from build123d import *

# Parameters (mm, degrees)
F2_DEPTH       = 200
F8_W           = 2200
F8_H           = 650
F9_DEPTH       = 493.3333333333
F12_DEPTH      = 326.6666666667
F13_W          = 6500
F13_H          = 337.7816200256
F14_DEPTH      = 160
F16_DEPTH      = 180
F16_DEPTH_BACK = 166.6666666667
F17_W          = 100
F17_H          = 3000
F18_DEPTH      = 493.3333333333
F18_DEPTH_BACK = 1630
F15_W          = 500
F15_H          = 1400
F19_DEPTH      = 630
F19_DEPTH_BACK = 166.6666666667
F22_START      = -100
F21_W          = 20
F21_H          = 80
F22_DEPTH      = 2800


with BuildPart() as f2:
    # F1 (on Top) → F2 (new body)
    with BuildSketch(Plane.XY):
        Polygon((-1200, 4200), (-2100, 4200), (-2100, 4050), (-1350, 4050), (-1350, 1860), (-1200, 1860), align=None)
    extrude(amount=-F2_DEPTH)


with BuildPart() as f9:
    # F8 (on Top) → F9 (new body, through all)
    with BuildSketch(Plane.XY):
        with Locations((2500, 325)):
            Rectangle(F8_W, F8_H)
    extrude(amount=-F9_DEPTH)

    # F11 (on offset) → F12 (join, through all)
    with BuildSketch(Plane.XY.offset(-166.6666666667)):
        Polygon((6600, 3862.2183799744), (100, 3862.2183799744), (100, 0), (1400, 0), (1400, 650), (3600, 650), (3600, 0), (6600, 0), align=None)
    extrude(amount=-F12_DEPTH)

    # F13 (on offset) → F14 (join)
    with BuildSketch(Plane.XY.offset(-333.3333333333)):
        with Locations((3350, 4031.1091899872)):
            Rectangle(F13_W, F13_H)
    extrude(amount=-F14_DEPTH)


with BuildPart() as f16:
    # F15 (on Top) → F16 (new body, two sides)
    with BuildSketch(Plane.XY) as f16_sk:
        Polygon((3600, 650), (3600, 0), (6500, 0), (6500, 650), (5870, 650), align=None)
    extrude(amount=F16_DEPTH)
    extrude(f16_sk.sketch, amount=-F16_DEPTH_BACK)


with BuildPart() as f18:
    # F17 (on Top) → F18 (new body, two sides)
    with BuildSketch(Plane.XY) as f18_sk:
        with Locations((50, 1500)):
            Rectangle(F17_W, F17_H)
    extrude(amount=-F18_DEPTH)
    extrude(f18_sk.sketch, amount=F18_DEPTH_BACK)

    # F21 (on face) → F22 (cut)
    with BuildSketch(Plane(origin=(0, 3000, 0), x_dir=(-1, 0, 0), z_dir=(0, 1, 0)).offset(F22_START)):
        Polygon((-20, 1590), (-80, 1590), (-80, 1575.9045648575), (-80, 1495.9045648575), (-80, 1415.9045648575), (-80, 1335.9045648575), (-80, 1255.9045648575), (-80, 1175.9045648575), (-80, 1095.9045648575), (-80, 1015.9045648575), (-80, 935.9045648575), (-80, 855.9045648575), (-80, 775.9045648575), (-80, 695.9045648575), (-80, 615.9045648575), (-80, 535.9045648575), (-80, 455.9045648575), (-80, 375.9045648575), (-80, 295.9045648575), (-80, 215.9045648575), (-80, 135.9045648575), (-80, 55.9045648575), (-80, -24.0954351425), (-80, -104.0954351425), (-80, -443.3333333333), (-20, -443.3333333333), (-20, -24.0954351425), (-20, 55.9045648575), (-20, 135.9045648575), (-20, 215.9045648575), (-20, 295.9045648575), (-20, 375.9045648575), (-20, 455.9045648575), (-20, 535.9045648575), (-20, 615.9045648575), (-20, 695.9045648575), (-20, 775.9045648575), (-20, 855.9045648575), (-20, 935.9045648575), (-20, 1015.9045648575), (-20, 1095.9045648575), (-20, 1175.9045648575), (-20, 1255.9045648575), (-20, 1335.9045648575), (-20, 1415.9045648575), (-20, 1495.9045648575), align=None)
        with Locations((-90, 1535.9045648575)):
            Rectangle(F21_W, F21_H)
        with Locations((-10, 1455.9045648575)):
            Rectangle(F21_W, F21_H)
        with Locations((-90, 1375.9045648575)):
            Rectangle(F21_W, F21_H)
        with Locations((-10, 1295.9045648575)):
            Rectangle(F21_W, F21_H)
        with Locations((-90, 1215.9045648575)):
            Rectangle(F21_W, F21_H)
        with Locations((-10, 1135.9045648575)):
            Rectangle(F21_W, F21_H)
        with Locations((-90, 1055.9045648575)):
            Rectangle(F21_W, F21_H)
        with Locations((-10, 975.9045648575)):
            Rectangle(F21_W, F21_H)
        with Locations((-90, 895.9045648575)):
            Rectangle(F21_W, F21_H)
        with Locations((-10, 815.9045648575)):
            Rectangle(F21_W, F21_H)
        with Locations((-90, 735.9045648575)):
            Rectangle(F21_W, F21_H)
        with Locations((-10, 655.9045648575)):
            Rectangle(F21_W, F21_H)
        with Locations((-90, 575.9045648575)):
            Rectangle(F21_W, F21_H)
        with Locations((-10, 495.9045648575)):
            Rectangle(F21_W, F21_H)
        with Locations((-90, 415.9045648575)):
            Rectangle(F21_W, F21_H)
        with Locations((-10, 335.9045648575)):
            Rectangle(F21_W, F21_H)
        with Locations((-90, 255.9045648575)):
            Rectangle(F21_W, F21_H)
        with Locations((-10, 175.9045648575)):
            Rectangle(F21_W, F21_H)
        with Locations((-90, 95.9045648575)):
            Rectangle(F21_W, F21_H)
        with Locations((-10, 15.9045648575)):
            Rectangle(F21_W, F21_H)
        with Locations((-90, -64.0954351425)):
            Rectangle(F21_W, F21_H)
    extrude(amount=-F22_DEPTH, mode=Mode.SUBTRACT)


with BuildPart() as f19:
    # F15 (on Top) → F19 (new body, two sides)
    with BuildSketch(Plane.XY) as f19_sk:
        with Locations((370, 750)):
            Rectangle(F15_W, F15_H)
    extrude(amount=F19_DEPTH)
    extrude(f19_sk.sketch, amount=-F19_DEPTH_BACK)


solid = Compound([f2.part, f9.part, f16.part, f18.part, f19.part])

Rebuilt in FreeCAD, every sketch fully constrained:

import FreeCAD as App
import Part
import Sketcher
from FreeCAD import Vector
Q = App.Units.Quantity

doc = App.newDocument("Part")
body = doc.addObject("PartDesign::Body", "Body")

# Sketch on XY plane
sketch1 = body.newObject("Sketcher::SketchObject", "Sketch")
sketch1.AttachmentSupport = (doc.getObject("XY_Plane"), [""])
sketch1.MapMode = "FlatFace"
sketch1.addGeometry([
    Part.LineSegment(Vector(-1200, 4200, 0), Vector(-2100, 4200, 0)),  # 0
    Part.LineSegment(Vector(-2100, 4200, 0), Vector(-2100, 4050, 0)),  # 1
    Part.LineSegment(Vector(-2100, 4050, 0), Vector(-1350, 4050, 0)),  # 2
    Part.LineSegment(Vector(-1350, 4050, 0), Vector(-1350, 1860, 0)),  # 3
    Part.LineSegment(Vector(-1350, 1860, 0), Vector(-1200, 1860, 0)),  # 4
    Part.LineSegment(Vector(-1200, 1860, 0), Vector(-1200, 4200, 0)),  # 5
], False)
sketch1.addConstraint([
    Sketcher.Constraint("Coincident", 0, 2, 1, 1),
    Sketcher.Constraint("Coincident", 1, 2, 2, 1),
    Sketcher.Constraint("Coincident", 2, 2, 3, 1),
    Sketcher.Constraint("Coincident", 3, 2, 4, 1),
    Sketcher.Constraint("Coincident", 4, 2, 5, 1),
    Sketcher.Constraint("Coincident", 5, 2, 0, 1),
    Sketcher.Constraint("Horizontal", 0),
    Sketcher.Constraint("Vertical", 1),
    Sketcher.Constraint("Horizontal", 2),
    Sketcher.Constraint("Vertical", 3),
    Sketcher.Constraint("Horizontal", 4),
    Sketcher.Constraint("Vertical", 5),
    Sketcher.Constraint("Equal", 4, 1),
    Sketcher.Constraint("DistanceX", 0, 2, 0, 1, Q("900 mm")),
    Sketcher.Constraint("DistanceX", 2, 1, 2, 2, Q("750 mm")),
    Sketcher.Constraint("DistanceY", 3, 2, 3, 1, Q("2190 mm")),
    Sketcher.Constraint("DistanceX", 0, 2, -1, 1, Q("2100 mm")),
    Sketcher.Constraint("DistanceY", -1, 1, 0, 2, Q("4200 mm")),
])
pad1 = body.newObject("PartDesign::Pad", "Pad")
pad1.Profile = sketch1
pad1.Length = 200
pad1.Reversed = True
body2 = doc.addObject("PartDesign::Body", "Body001")

# Sketch on XY plane
sketch2 = body2.newObject("Sketcher::SketchObject", "Sketch001")
sketch2.AttachmentSupport = (doc.getObject("XY_Plane001"), [""])
sketch2.MapMode = "FlatFace"
sketch2.addGeometry([
    Part.LineSegment(Vector(1400, 650, 0), Vector(1400, 0, 0)),
    Part.LineSegment(Vector(1400, 0, 0), Vector(3600, 0, 0)),
    Part.LineSegment(Vector(3600, 0, 0), Vector(3600, 650, 0)),
    Part.LineSegment(Vector(3600, 650, 0), Vector(1400, 650, 0)),
], False)
sketch2.addConstraint([
    Sketcher.Constraint("Coincident", 0, 2, 1, 1),
    Sketcher.Constraint("Coincident", 1, 2, 2, 1),
    Sketcher.Constraint("Coincident", 2, 2, 3, 1),
    Sketcher.Constraint("Coincident", 3, 2, 0, 1),
    Sketcher.Constraint("Vertical", 0),
    Sketcher.Constraint("Horizontal", 1),
    Sketcher.Constraint("Vertical", 2),
    Sketcher.Constraint("Horizontal", 3),
    Sketcher.Constraint("PointOnObject", 0, 2, -1),
    Sketcher.Constraint("DistanceX", 1, 1, 1, 2, Q("2200 mm")),
    Sketcher.Constraint("DistanceY", 0, 2, 0, 1, Q("650 mm")),
    Sketcher.Constraint("DistanceX", -1, 1, 0, 2, Q("1400 mm")),
])
pad2 = body2.newObject("PartDesign::Pad", "Pad001")
pad2.Profile = sketch2
pad2.Length = 493.333333
pad2.Reversed = True

# Sketch on XY plane
sketch3 = body2.newObject("Sketcher::SketchObject", "Sketch002")
sketch3.AttachmentSupport = (doc.getObject("XY_Plane001"), [""])
sketch3.MapMode = "FlatFace"
sketch3.AttachmentOffset = App.Placement(Vector(0, 0, -166.666667), App.Rotation())
sketch3.addGeometry([
    Part.LineSegment(Vector(6600, 3862.21838, 0), Vector(100, 3862.21838, 0)),  # 0
    Part.LineSegment(Vector(100, 3862.21838, 0), Vector(100, 0, 0)),  # 1
    Part.LineSegment(Vector(100, 0, 0), Vector(1400, 0, 0)),  # 2
    Part.LineSegment(Vector(1400, 0, 0), Vector(1400, 650, 0)),  # 3
    Part.LineSegment(Vector(1400, 650, 0), Vector(3600, 650, 0)),  # 4
    Part.LineSegment(Vector(3600, 650, 0), Vector(3600, 0, 0)),  # 5
    Part.LineSegment(Vector(3600, 0, 0), Vector(6600, 0, 0)),  # 6
    Part.LineSegment(Vector(6600, 0, 0), Vector(6600, 3862.21838, 0)),  # 7
], False)
sketch3.addConstraint([
    Sketcher.Constraint("Coincident", 0, 2, 1, 1),
    Sketcher.Constraint("Coincident", 1, 2, 2, 1),
    Sketcher.Constraint("Coincident", 2, 2, 3, 1),
    Sketcher.Constraint("Coincident", 3, 2, 4, 1),
    Sketcher.Constraint("Coincident", 4, 2, 5, 1),
    Sketcher.Constraint("Coincident", 5, 2, 6, 1),
    Sketcher.Constraint("Coincident", 6, 2, 7, 1),
    Sketcher.Constraint("Coincident", 7, 2, 0, 1),
    Sketcher.Constraint("Horizontal", 0),
    Sketcher.Constraint("Vertical", 1),
    Sketcher.Constraint("Horizontal", 2),
    Sketcher.Constraint("Vertical", 3),
    Sketcher.Constraint("Horizontal", 4),
    Sketcher.Constraint("Vertical", 5),
    Sketcher.Constraint("Horizontal", 6),
    Sketcher.Constraint("Vertical", 7),
    Sketcher.Constraint("PointOnObject", 1, 2, -1),
    Sketcher.Constraint("PointOnObject", 5, 2, -1),
    Sketcher.Constraint("DistanceX", 0, 2, 0, 1, Q("6500 mm")),
    Sketcher.Constraint("DistanceX", 2, 1, 2, 2, Q("1300 mm")),
    Sketcher.Constraint("DistanceX", 4, 1, 4, 2, Q("2200 mm")),
    Sketcher.Constraint("DistanceY", 3, 1, 3, 2, Q("650 mm")),
    Sketcher.Constraint("DistanceX", -1, 1, 0, 2, Q("100 mm")),
    Sketcher.Constraint("DistanceY", 1, 2, 1, 1, Q("3862.21838 mm")),
])
pad3 = body2.newObject("PartDesign::Pad", "Pad002")
pad3.Profile = sketch3
pad3.Length = 326.666667
pad3.Reversed = True

# Sketch on XY plane
sketch4 = body2.newObject("Sketcher::SketchObject", "Sketch003")
sketch4.AttachmentSupport = (doc.getObject("XY_Plane001"), [""])
sketch4.MapMode = "FlatFace"
sketch4.AttachmentOffset = App.Placement(Vector(0, 0, -333.333333), App.Rotation())
sketch4.addGeometry([
    Part.LineSegment(Vector(100, 4200, 0), Vector(100, 3862.21838, 0)),
    Part.LineSegment(Vector(100, 3862.21838, 0), Vector(6600, 3862.21838, 0)),
    Part.LineSegment(Vector(6600, 3862.21838, 0), Vector(6600, 4200, 0)),
    Part.LineSegment(Vector(6600, 4200, 0), Vector(100, 4200, 0)),
], False)
sketch4.addConstraint([
    Sketcher.Constraint("Coincident", 0, 2, 1, 1),
    Sketcher.Constraint("Coincident", 1, 2, 2, 1),
    Sketcher.Constraint("Coincident", 2, 2, 3, 1),
    Sketcher.Constraint("Coincident", 3, 2, 0, 1),
    Sketcher.Constraint("Vertical", 0),
    Sketcher.Constraint("Horizontal", 1),
    Sketcher.Constraint("Vertical", 2),
    Sketcher.Constraint("Horizontal", 3),
    Sketcher.Constraint("DistanceX", 1, 1, 1, 2, Q("6500 mm")),
    Sketcher.Constraint("DistanceX", -1, 1, 0, 2, Q("100 mm")),
    Sketcher.Constraint("DistanceY", -1, 1, 2, 2, Q("4200 mm")),
    Sketcher.Constraint("DistanceY", 0, 2, 0, 1, Q("337.78162 mm")),
])
pad4 = body2.newObject("PartDesign::Pad", "Pad003")
pad4.Profile = sketch4
pad4.Length = 160
pad4.Reversed = True
body3 = doc.addObject("PartDesign::Body", "Body002")

# Sketch on XY plane
sketch5 = body3.newObject("Sketcher::SketchObject", "Sketch004")
sketch5.AttachmentSupport = (doc.getObject("XY_Plane002"), [""])
sketch5.MapMode = "FlatFace"
sketch5.addGeometry([
    Part.LineSegment(Vector(3600, 650, 0), Vector(3600, 0, 0)),
    Part.LineSegment(Vector(3600, 0, 0), Vector(6500, 0, 0)),
    Part.LineSegment(Vector(6500, 0, 0), Vector(6500, 650, 0)),
    Part.LineSegment(Vector(6500, 650, 0), Vector(3600, 650, 0)),
], False)
sketch5.addConstraint([
    Sketcher.Constraint("Coincident", 0, 2, 1, 1),
    Sketcher.Constraint("Coincident", 1, 2, 2, 1),
    Sketcher.Constraint("Coincident", 2, 2, 3, 1),
    Sketcher.Constraint("Coincident", 3, 2, 0, 1),
    Sketcher.Constraint("Vertical", 0),
    Sketcher.Constraint("Horizontal", 1),
    Sketcher.Constraint("Vertical", 2),
    Sketcher.Constraint("Horizontal", 3),
    Sketcher.Constraint("PointOnObject", 0, 2, -1),
    Sketcher.Constraint("DistanceX", 1, 1, 1, 2, Q("2900 mm")),
    Sketcher.Constraint("DistanceY", 0, 2, 0, 1, Q("650 mm")),
    Sketcher.Constraint("DistanceX", -1, 1, 0, 2, Q("3600 mm")),
])
pad5 = body3.newObject("PartDesign::Pad", "Pad004")
pad5.Profile = sketch5
pad5.Type = "TwoLengths"
pad5.Length = 180
pad5.Length2 = 166.666667
body4 = doc.addObject("PartDesign::Body", "Body003")

# Sketch on XY plane
sketch6 = body4.newObject("Sketcher::SketchObject", "Sketch005")
sketch6.AttachmentSupport = (doc.getObject("XY_Plane003"), [""])
sketch6.MapMode = "FlatFace"
sketch6.addGeometry([
    Part.LineSegment(Vector(0, 3000, 0), Vector(0, 0, 0)),
    Part.LineSegment(Vector(0, 0, 0), Vector(100, 0, 0)),
    Part.LineSegment(Vector(100, 0, 0), Vector(100, 3000, 0)),
    Part.LineSegment(Vector(100, 3000, 0), Vector(0, 3000, 0)),
], False)
sketch6.addConstraint([
    Sketcher.Constraint("Coincident", 0, 2, 1, 1),
    Sketcher.Constraint("Coincident", 1, 2, 2, 1),
    Sketcher.Constraint("Coincident", 2, 2, 3, 1),
    Sketcher.Constraint("Coincident", 3, 2, 0, 1),
    Sketcher.Constraint("Vertical", 0),
    Sketcher.Constraint("Horizontal", 1),
    Sketcher.Constraint("Vertical", 2),
    Sketcher.Constraint("Horizontal", 3),
    Sketcher.Constraint("Coincident", 0, 2, -1, 1),
    Sketcher.Constraint("DistanceX", 1, 1, 1, 2, Q("100 mm")),
    Sketcher.Constraint("DistanceY", 0, 2, 0, 1, Q("3000 mm")),
])
pad6 = body4.newObject("PartDesign::Pad", "Pad005")
pad6.Profile = sketch6
pad6.Type = "TwoLengths"
pad6.Length = 493.333333
pad6.Length2 = 1630
pad6.Reversed = True

# Sketch on XZ plane
sketch7 = body4.newObject("Sketcher::SketchObject", "Sketch006")
sketch7.AttachmentSupport = (doc.getObject("XZ_Plane003"), [""])
sketch7.MapMode = "FlatFace"
sketch7.AttachmentOffset = App.Placement(Vector(0, 0, -2900), App.Rotation())
sketch7.addGeometry([
    Part.LineSegment(Vector(20, 1590, 0), Vector(80, 1590, 0)),  # 0
    Part.LineSegment(Vector(80, 1590, 0), Vector(80, 1575.904565, 0)),  # 1
    Part.LineSegment(Vector(80, 1575.904565, 0), Vector(100, 1575.904565, 0)),  # 2
    Part.LineSegment(Vector(100, 1575.904565, 0), Vector(100, 1495.904565, 0)),  # 3
    Part.LineSegment(Vector(100, 1495.904565, 0), Vector(80, 1495.904565, 0)),  # 4
    Part.LineSegment(Vector(80, 1495.904565, 0), Vector(80, 1415.904565, 0)),  # 5
    Part.LineSegment(Vector(80, 1415.904565, 0), Vector(100, 1415.904565, 0)),  # 6
    Part.LineSegment(Vector(100, 1415.904565, 0), Vector(100, 1335.904565, 0)),  # 7
    Part.LineSegment(Vector(100, 1335.904565, 0), Vector(80, 1335.904565, 0)),  # 8
    Part.LineSegment(Vector(80, 1335.904565, 0), Vector(80, 1255.904565, 0)),  # 9
    Part.LineSegment(Vector(80, 1255.904565, 0), Vector(100, 1255.904565, 0)),  # 10
    Part.LineSegment(Vector(100, 1255.904565, 0), Vector(100, 1175.904565, 0)),  # 11
    Part.LineSegment(Vector(100, 1175.904565, 0), Vector(80, 1175.904565, 0)),  # 12
    Part.LineSegment(Vector(80, 1175.904565, 0), Vector(80, 1095.904565, 0)),  # 13
    Part.LineSegment(Vector(80, 1095.904565, 0), Vector(100, 1095.904565, 0)),  # 14
    Part.LineSegment(Vector(100, 1095.904565, 0), Vector(100, 1015.904565, 0)),  # 15
    Part.LineSegment(Vector(100, 1015.904565, 0), Vector(80, 1015.904565, 0)),  # 16
    Part.LineSegment(Vector(80, 1015.904565, 0), Vector(80, 935.904565, 0)),  # 17
    Part.LineSegment(Vector(80, 935.904565, 0), Vector(100, 935.904565, 0)),  # 18
    Part.LineSegment(Vector(100, 935.904565, 0), Vector(100, 855.904565, 0)),  # 19
    Part.LineSegment(Vector(100, 855.904565, 0), Vector(80, 855.904565, 0)),  # 20
    Part.LineSegment(Vector(80, 855.904565, 0), Vector(80, 775.904565, 0)),  # 21
    Part.LineSegment(Vector(80, 775.904565, 0), Vector(100, 775.904565, 0)),  # 22
    Part.LineSegment(Vector(100, 775.904565, 0), Vector(100, 695.904565, 0)),  # 23
    Part.LineSegment(Vector(100, 695.904565, 0), Vector(80, 695.904565, 0)),  # 24
    Part.LineSegment(Vector(80, 695.904565, 0), Vector(80, 615.904565, 0)),  # 25
    Part.LineSegment(Vector(80, 615.904565, 0), Vector(100, 615.904565, 0)),  # 26
    Part.LineSegment(Vector(100, 615.904565, 0), Vector(100, 535.904565, 0)),  # 27
    Part.LineSegment(Vector(100, 535.904565, 0), Vector(80, 535.904565, 0)),  # 28
    Part.LineSegment(Vector(80, 535.904565, 0), Vector(80, 455.904565, 0)),  # 29
    Part.LineSegment(Vector(80, 455.904565, 0), Vector(100, 455.904565, 0)),  # 30
    Part.LineSegment(Vector(100, 455.904565, 0), Vector(100, 375.904565, 0)),  # 31
    Part.LineSegment(Vector(100, 375.904565, 0), Vector(80, 375.904565, 0)),  # 32
    Part.LineSegment(Vector(80, 375.904565, 0), Vector(80, 295.904565, 0)),  # 33
    Part.LineSegment(Vector(80, 295.904565, 0), Vector(100, 295.904565, 0)),  # 34
    Part.LineSegment(Vector(100, 295.904565, 0), Vector(100, 215.904565, 0)),  # 35
    Part.LineSegment(Vector(100, 215.904565, 0), Vector(80, 215.904565, 0)),  # 36
    Part.LineSegment(Vector(80, 215.904565, 0), Vector(80, 135.904565, 0)),  # 37
    Part.LineSegment(Vector(80, 135.904565, 0), Vector(100, 135.904565, 0)),  # 38
    Part.LineSegment(Vector(100, 135.904565, 0), Vector(100, 55.904565, 0)),  # 39
    Part.LineSegment(Vector(100, 55.904565, 0), Vector(80, 55.904565, 0)),  # 40
    Part.LineSegment(Vector(80, 55.904565, 0), Vector(80, -24.095435, 0)),  # 41
    Part.LineSegment(Vector(80, -24.095435, 0), Vector(100, -24.095435, 0)),  # 42
    Part.LineSegment(Vector(100, -24.095435, 0), Vector(100, -104.095435, 0)),  # 43
    Part.LineSegment(Vector(100, -104.095435, 0), Vector(80, -104.095435, 0)),  # 44
    Part.LineSegment(Vector(80, -104.095435, 0), Vector(80, -443.333333, 0)),  # 45
    Part.LineSegment(Vector(80, -443.333333, 0), Vector(20, -443.333333, 0)),  # 46
    Part.LineSegment(Vector(20, -443.333333, 0), Vector(20, -24.095435, 0)),  # 47
    Part.LineSegment(Vector(20, -24.095435, 0), Vector(0, -24.095435, 0)),  # 48
    Part.LineSegment(Vector(0, -24.095435, 0), Vector(0, 55.904565, 0)),  # 49
    Part.LineSegment(Vector(0, 55.904565, 0), Vector(20, 55.904565, 0)),  # 50
    Part.LineSegment(Vector(20, 55.904565, 0), Vector(20, 135.904565, 0)),  # 51
    Part.LineSegment(Vector(20, 135.904565, 0), Vector(0, 135.904565, 0)),  # 52
    Part.LineSegment(Vector(0, 135.904565, 0), Vector(0, 215.904565, 0)),  # 53
    Part.LineSegment(Vector(0, 215.904565, 0), Vector(20, 215.904565, 0)),  # 54
    Part.LineSegment(Vector(20, 215.904565, 0), Vector(20, 295.904565, 0)),  # 55
    Part.LineSegment(Vector(20, 295.904565, 0), Vector(0, 295.904565, 0)),  # 56
    Part.LineSegment(Vector(0, 295.904565, 0), Vector(0, 375.904565, 0)),  # 57
    Part.LineSegment(Vector(0, 375.904565, 0), Vector(20, 375.904565, 0)),  # 58
    Part.LineSegment(Vector(20, 375.904565, 0), Vector(20, 455.904565, 0)),  # 59
    Part.LineSegment(Vector(20, 455.904565, 0), Vector(0, 455.904565, 0)),  # 60
    Part.LineSegment(Vector(0, 455.904565, 0), Vector(0, 535.904565, 0)),  # 61
    Part.LineSegment(Vector(0, 535.904565, 0), Vector(20, 535.904565, 0)),  # 62
    Part.LineSegment(Vector(20, 535.904565, 0), Vector(20, 615.904565, 0)),  # 63
    Part.LineSegment(Vector(20, 615.904565, 0), Vector(0, 615.904565, 0)),  # 64
    Part.LineSegment(Vector(0, 615.904565, 0), Vector(0, 695.904565, 0)),  # 65
    Part.LineSegment(Vector(0, 695.904565, 0), Vector(20, 695.904565, 0)),  # 66
    Part.LineSegment(Vector(20, 695.904565, 0), Vector(20, 775.904565, 0)),  # 67
    Part.LineSegment(Vector(20, 775.904565, 0), Vector(0, 775.904565, 0)),  # 68
    Part.LineSegment(Vector(0, 775.904565, 0), Vector(0, 855.904565, 0)),  # 69
    Part.LineSegment(Vector(0, 855.904565, 0), Vector(20, 855.904565, 0)),  # 70
    Part.LineSegment(Vector(20, 855.904565, 0), Vector(20, 935.904565, 0)),  # 71
    Part.LineSegment(Vector(20, 935.904565, 0), Vector(0, 935.904565, 0)),  # 72
    Part.LineSegment(Vector(0, 935.904565, 0), Vector(0, 1015.904565, 0)),  # 73
    Part.LineSegment(Vector(0, 1015.904565, 0), Vector(20, 1015.904565, 0)),  # 74
    Part.LineSegment(Vector(20, 1015.904565, 0), Vector(20, 1095.904565, 0)),  # 75
    Part.LineSegment(Vector(20, 1095.904565, 0), Vector(0, 1095.904565, 0)),  # 76
    Part.LineSegment(Vector(0, 1095.904565, 0), Vector(0, 1175.904565, 0)),  # 77
    Part.LineSegment(Vector(0, 1175.904565, 0), Vector(20, 1175.904565, 0)),  # 78
    Part.LineSegment(Vector(20, 1175.904565, 0), Vector(20, 1255.904565, 0)),  # 79
    Part.LineSegment(Vector(20, 1255.904565, 0), Vector(0, 1255.904565, 0)),  # 80
    Part.LineSegment(Vector(0, 1255.904565, 0), Vector(0, 1335.904565, 0)),  # 81
    Part.LineSegment(Vector(0, 1335.904565, 0), Vector(20, 1335.904565, 0)),  # 82
    Part.LineSegment(Vector(20, 1335.904565, 0), Vector(20, 1415.904565, 0)),  # 83
    Part.LineSegment(Vector(20, 1415.904565, 0), Vector(0, 1415.904565, 0)),  # 84
    Part.LineSegment(Vector(0, 1415.904565, 0), Vector(0, 1495.904565, 0)),  # 85
    Part.LineSegment(Vector(0, 1495.904565, 0), Vector(20, 1495.904565, 0)),  # 86
    Part.LineSegment(Vector(20, 1495.904565, 0), Vector(20, 1590, 0)),  # 87
], False)
sketch7.addConstraint([
    Sketcher.Constraint("Coincident", 0, 2, 1, 1),
    Sketcher.Constraint("Coincident", 1, 2, 2, 1),
    Sketcher.Constraint("Coincident", 2, 2, 3, 1),
    Sketcher.Constraint("Coincident", 3, 2, 4, 1),
    Sketcher.Constraint("Coincident", 4, 2, 5, 1),
    Sketcher.Constraint("Coincident", 5, 2, 6, 1),
    Sketcher.Constraint("Coincident", 6, 2, 7, 1),
    Sketcher.Constraint("Coincident", 7, 2, 8, 1),
    Sketcher.Constraint("Coincident", 8, 2, 9, 1),
    Sketcher.Constraint("Coincident", 9, 2, 10, 1),
    Sketcher.Constraint("Coincident", 10, 2, 11, 1),
    Sketcher.Constraint("Coincident", 11, 2, 12, 1),
    Sketcher.Constraint("Coincident", 12, 2, 13, 1),
    Sketcher.Constraint("Coincident", 13, 2, 14, 1),
    Sketcher.Constraint("Coincident", 14, 2, 15, 1),
    Sketcher.Constraint("Coincident", 15, 2, 16, 1),
    Sketcher.Constraint("Coincident", 16, 2, 17, 1),
    Sketcher.Constraint("Coincident", 17, 2, 18, 1),
    Sketcher.Constraint("Coincident", 18, 2, 19, 1),
    Sketcher.Constraint("Coincident", 19, 2, 20, 1),
    Sketcher.Constraint("Coincident", 20, 2, 21, 1),
    Sketcher.Constraint("Coincident", 21, 2, 22, 1),
    Sketcher.Constraint("Coincident", 22, 2, 23, 1),
    Sketcher.Constraint("Coincident", 23, 2, 24, 1),
    Sketcher.Constraint("Coincident", 24, 2, 25, 1),
    Sketcher.Constraint("Coincident", 25, 2, 26, 1),
    Sketcher.Constraint("Coincident", 26, 2, 27, 1),
    Sketcher.Constraint("Coincident", 27, 2, 28, 1),
    Sketcher.Constraint("Coincident", 28, 2, 29, 1),
    Sketcher.Constraint("Coincident", 29, 2, 30, 1),
    Sketcher.Constraint("Coincident", 30, 2, 31, 1),
    Sketcher.Constraint("Coincident", 31, 2, 32, 1),
    Sketcher.Constraint("Coincident", 32, 2, 33, 1),
    Sketcher.Constraint("Coincident", 33, 2, 34, 1),
    Sketcher.Constraint("Coincident", 34, 2, 35, 1),
    Sketcher.Constraint("Coincident", 35, 2, 36, 1),
    Sketcher.Constraint("Coincident", 36, 2, 37, 1),
    Sketcher.Constraint("Coincident", 37, 2, 38, 1),
    Sketcher.Constraint("Coincident", 38, 2, 39, 1),
    Sketcher.Constraint("Coincident", 39, 2, 40, 1),
    Sketcher.Constraint("Coincident", 40, 2, 41, 1),
    Sketcher.Constraint("Coincident", 41, 2, 42, 1),
    Sketcher.Constraint("Coincident", 42, 2, 43, 1),
    Sketcher.Constraint("Coincident", 43, 2, 44, 1),
    Sketcher.Constraint("Coincident", 44, 2, 45, 1),
    Sketcher.Constraint("Coincident", 45, 2, 46, 1),
    Sketcher.Constraint("Coincident", 46, 2, 47, 1),
    Sketcher.Constraint("Coincident", 47, 2, 48, 1),
    Sketcher.Constraint("Coincident", 48, 2, 49, 1),
    Sketcher.Constraint("Coincident", 49, 2, 50, 1),
    Sketcher.Constraint("Coincident", 50, 2, 51, 1),
    Sketcher.Constraint("Coincident", 51, 2, 52, 1),
    Sketcher.Constraint("Coincident", 52, 2, 53, 1),
    Sketcher.Constraint("Coincident", 53, 2, 54, 1),
    Sketcher.Constraint("Coincident", 54, 2, 55, 1),
    Sketcher.Constraint("Coincident", 55, 2, 56, 1),
    Sketcher.Constraint("Coincident", 56, 2, 57, 1),
    Sketcher.Constraint("Coincident", 57, 2, 58, 1),
    Sketcher.Constraint("Coincident", 58, 2, 59, 1),
    Sketcher.Constraint("Coincident", 59, 2, 60, 1),
    Sketcher.Constraint("Coincident", 60, 2, 61, 1),
    Sketcher.Constraint("Coincident", 61, 2, 62, 1),
    Sketcher.Constraint("Coincident", 62, 2, 63, 1),
    Sketcher.Constraint("Coincident", 63, 2, 64, 1),
    Sketcher.Constraint("Coincident", 64, 2, 65, 1),
    Sketcher.Constraint("Coincident", 65, 2, 66, 1),
    Sketcher.Constraint("Coincident", 66, 2, 67, 1),
    Sketcher.Constraint("Coincident", 67, 2, 68, 1),
    Sketcher.Constraint("Coincident", 68, 2, 69, 1),
    Sketcher.Constraint("Coincident", 69, 2, 70, 1),
    Sketcher.Constraint("Coincident", 70, 2, 71, 1),
    Sketcher.Constraint("Coincident", 71, 2, 72, 1),
    Sketcher.Constraint("Coincident", 72, 2, 73, 1),
    Sketcher.Constraint("Coincident", 73, 2, 74, 1),
    Sketcher.Constraint("Coincident", 74, 2, 75, 1),
    Sketcher.Constraint("Coincident", 75, 2, 76, 1),
    Sketcher.Constraint("Coincident", 76, 2, 77, 1),
    Sketcher.Constraint("Coincident", 77, 2, 78, 1),
    Sketcher.Constraint("Coincident", 78, 2, 79, 1),
    Sketcher.Constraint("Coincident", 79, 2, 80, 1),
    Sketcher.Constraint("Coincident", 80, 2, 81, 1),
    Sketcher.Constraint("Coincident", 81, 2, 82, 1),
    Sketcher.Constraint("Coincident", 82, 2, 83, 1),
    Sketcher.Constraint("Coincident", 83, 2, 84, 1),
    Sketcher.Constraint("Coincident", 84, 2, 85, 1),
    Sketcher.Constraint("Coincident", 85, 2, 86, 1),
    Sketcher.Constraint("Coincident", 86, 2, 87, 1),
    Sketcher.Constraint("Coincident", 87, 2, 0, 1),
    Sketcher.Constraint("Horizontal", 0),
    Sketcher.Constraint("Vertical", 1),
    Sketcher.Constraint("Horizontal", 2),
    Sketcher.Constraint("Vertical", 3),
    Sketcher.Constraint("Horizontal", 4),
    Sketcher.Constraint("Vertical", 5),
    Sketcher.Constraint("Horizontal", 6),
    Sketcher.Constraint("Vertical", 7),
    Sketcher.Constraint("Horizontal", 8),
    Sketcher.Constraint("Vertical", 9),
    Sketcher.Constraint("Horizontal", 10),
    Sketcher.Constraint("Vertical", 11),
    Sketcher.Constraint("Horizontal", 12),
    Sketcher.Constraint("Vertical", 13),
    Sketcher.Constraint("Horizontal", 14),
    Sketcher.Constraint("Vertical", 15),
    Sketcher.Constraint("Horizontal", 16),
    Sketcher.Constraint("Vertical", 17),
    Sketcher.Constraint("Horizontal", 18),
    Sketcher.Constraint("Vertical", 19),
    Sketcher.Constraint("Horizontal", 20),
    Sketcher.Constraint("Vertical", 21),
    Sketcher.Constraint("Horizontal", 22),
    Sketcher.Constraint("Vertical", 23),
    Sketcher.Constraint("Horizontal", 24),
    Sketcher.Constraint("Vertical", 25),
    Sketcher.Constraint("Horizontal", 26),
    Sketcher.Constraint("Vertical", 27),
    Sketcher.Constraint("Horizontal", 28),
    Sketcher.Constraint("Vertical", 29),
    Sketcher.Constraint("Horizontal", 30),
    Sketcher.Constraint("Vertical", 31),
    Sketcher.Constraint("Horizontal", 32),
    Sketcher.Constraint("Vertical", 33),
    Sketcher.Constraint("Horizontal", 34),
    Sketcher.Constraint("Vertical", 35),
    Sketcher.Constraint("Horizontal", 36),
    Sketcher.Constraint("Vertical", 37),
    Sketcher.Constraint("Horizontal", 38),
    Sketcher.Constraint("Vertical", 39),
    Sketcher.Constraint("Horizontal", 40),
    Sketcher.Constraint("Vertical", 41),
    Sketcher.Constraint("Horizontal", 42),
    Sketcher.Constraint("Vertical", 43),
    Sketcher.Constraint("Horizontal", 44),
    Sketcher.Constraint("Vertical", 45),
    Sketcher.Constraint("Horizontal", 46),
    Sketcher.Constraint("Vertical", 47),
    Sketcher.Constraint("Horizontal", 48),
    Sketcher.Constraint("Vertical", 49),
    Sketcher.Constraint("Horizontal", 50),
    Sketcher.Constraint("Vertical", 51),
    Sketcher.Constraint("Horizontal", 52),
    Sketcher.Constraint("Vertical", 53),
    Sketcher.Constraint("Horizontal", 54),
    Sketcher.Constraint("Vertical", 55),
    Sketcher.Constraint("Horizontal", 56),
    Sketcher.Constraint("Vertical", 57),
    Sketcher.Constraint("Horizontal", 58),
    Sketcher.Constraint("Vertical", 59),
    Sketcher.Constraint("Horizontal", 60),
    Sketcher.Constraint("Vertical", 61),
    Sketcher.Constraint("Horizontal", 62),
    Sketcher.Constraint("Vertical", 63),
    Sketcher.Constraint("Horizontal", 64),
    Sketcher.Constraint("Vertical", 65),
    Sketcher.Constraint("Horizontal", 66),
    Sketcher.Constraint("Vertical", 67),
    Sketcher.Constraint("Horizontal", 68),
    Sketcher.Constraint("Vertical", 69),
    Sketcher.Constraint("Horizontal", 70),
    Sketcher.Constraint("Vertical", 71),
    Sketcher.Constraint("Horizontal", 72),
    Sketcher.Constraint("Vertical", 73),
    Sketcher.Constraint("Horizontal", 74),
    Sketcher.Constraint("Vertical", 75),
    Sketcher.Constraint("Horizontal", 76),
    Sketcher.Constraint("Vertical", 77),
    Sketcher.Constraint("Horizontal", 78),
    Sketcher.Constraint("Vertical", 79),
    Sketcher.Constraint("Horizontal", 80),
    Sketcher.Constraint("Vertical", 81),
    Sketcher.Constraint("Horizontal", 82),
    Sketcher.Constraint("Vertical", 83),
    Sketcher.Constraint("Horizontal", 84),
    Sketcher.Constraint("Vertical", 85),
    Sketcher.Constraint("Horizontal", 86),
    Sketcher.Constraint("Vertical", 87),
    Sketcher.Constraint("PointOnObject", 48, 2, -2),
    Sketcher.Constraint("PointOnObject", 52, 2, -2),
    Sketcher.Constraint("PointOnObject", 56, 2, -2),
    Sketcher.Constraint("PointOnObject", 60, 2, -2),
    Sketcher.Constraint("PointOnObject", 64, 2, -2),
    Sketcher.Constraint("PointOnObject", 68, 2, -2),
    Sketcher.Constraint("PointOnObject", 72, 2, -2),
    Sketcher.Constraint("PointOnObject", 76, 2, -2),
    Sketcher.Constraint("PointOnObject", 80, 2, -2),
    Sketcher.Constraint("PointOnObject", 84, 2, -2),
    Sketcher.Constraint("Horizontal", 42, 2, 47, 2),
    Sketcher.Constraint("Horizontal", 40, 2, 49, 2),
    Sketcher.Constraint("Horizontal", 38, 2, 51, 2),
    Sketcher.Constraint("Horizontal", 36, 2, 53, 2),
    Sketcher.Constraint("Horizontal", 34, 2, 55, 2),
    Sketcher.Constraint("Horizontal", 32, 2, 57, 2),
    Sketcher.Constraint("Horizontal", 30, 2, 59, 2),
    Sketcher.Constraint("Horizontal", 28, 2, 61, 2),
    Sketcher.Constraint("Horizontal", 26, 2, 63, 2),
    Sketcher.Constraint("Horizontal", 24, 2, 65, 2),
    Sketcher.Constraint("Horizontal", 22, 2, 67, 2),
    Sketcher.Constraint("Horizontal", 20, 2, 69, 2),
    Sketcher.Constraint("Horizontal", 18, 2, 71, 2),
    Sketcher.Constraint("Horizontal", 16, 2, 73, 2),
    Sketcher.Constraint("Horizontal", 14, 2, 75, 2),
    Sketcher.Constraint("Horizontal", 12, 2, 77, 2),
    Sketcher.Constraint("Horizontal", 10, 2, 79, 2),
    Sketcher.Constraint("Horizontal", 8, 2, 81, 2),
    Sketcher.Constraint("Horizontal", 6, 2, 83, 2),
    Sketcher.Constraint("Horizontal", 4, 2, 85, 2),
    Sketcher.Constraint("Vertical", 1, 2, 4, 2),
    Sketcher.Constraint("Vertical", 3, 2, 6, 2),
    Sketcher.Constraint("Vertical", 5, 2, 8, 2),
    Sketcher.Constraint("Vertical", 7, 2, 10, 2),
    Sketcher.Constraint("Vertical", 9, 2, 12, 2),
    Sketcher.Constraint("Vertical", 11, 2, 14, 2),
    Sketcher.Constraint("Vertical", 13, 2, 16, 2),
    Sketcher.Constraint("Vertical", 15, 2, 18, 2),
    Sketcher.Constraint("Vertical", 17, 2, 20, 2),
    Sketcher.Constraint("Vertical", 19, 2, 22, 2),
    Sketcher.Constraint("Vertical", 21, 2, 24, 2),
    Sketcher.Constraint("Vertical", 23, 2, 26, 2),
    Sketcher.Constraint("Vertical", 25, 2, 28, 2),
    Sketcher.Constraint("Vertical", 27, 2, 30, 2),
    Sketcher.Constraint("Vertical", 29, 2, 32, 2),
    Sketcher.Constraint("Vertical", 31, 2, 34, 2),
    Sketcher.Constraint("Vertical", 33, 2, 36, 2),
    Sketcher.Constraint("Vertical", 35, 2, 38, 2),
    Sketcher.Constraint("Vertical", 37, 2, 40, 2),
    Sketcher.Constraint("Vertical", 39, 2, 42, 2),
    Sketcher.Constraint("Vertical", 41, 2, 44, 2),
    Sketcher.Constraint("Vertical", 47, 2, 50, 2),
    Sketcher.Constraint("Vertical", 51, 2, 54, 2),
    Sketcher.Constraint("Vertical", 55, 2, 58, 2),
    Sketcher.Constraint("Vertical", 59, 2, 62, 2),
    Sketcher.Constraint("Vertical", 63, 2, 66, 2),
    Sketcher.Constraint("Vertical", 67, 2, 70, 2),
    Sketcher.Constraint("Vertical", 71, 2, 74, 2),
    Sketcher.Constraint("Vertical", 75, 2, 78, 2),
    Sketcher.Constraint("Vertical", 79, 2, 82, 2),
    Sketcher.Constraint("Vertical", 83, 2, 86, 2),
    Sketcher.Constraint("Equal", 44, 48),
    Sketcher.Constraint("Equal", 3, 5),
    Sketcher.Constraint("Equal", 5, 7),
    Sketcher.Constraint("Equal", 7, 9),
    Sketcher.Constraint("Equal", 9, 11),
    Sketcher.Constraint("Equal", 11, 13),
    Sketcher.Constraint("Equal", 13, 15),
    Sketcher.Constraint("Equal", 15, 17),
    Sketcher.Constraint("Equal", 17, 19),
    Sketcher.Constraint("Equal", 19, 21),
    Sketcher.Constraint("Equal", 21, 23),
    Sketcher.Constraint("Equal", 23, 25),
    Sketcher.Constraint("Equal", 25, 27),
    Sketcher.Constraint("Equal", 27, 29),
    Sketcher.Constraint("Equal", 29, 31),
    Sketcher.Constraint("Equal", 31, 33),
    Sketcher.Constraint("Equal", 33, 35),
    Sketcher.Constraint("Equal", 35, 37),
    Sketcher.Constraint("Equal", 37, 39),
    Sketcher.Constraint("Equal", 39, 41),
    Sketcher.Constraint("Equal", 41, 43),
    Sketcher.Constraint("DistanceX", 0, 1, 0, 2, Q("60 mm")),
    Sketcher.Constraint("DistanceX", 2, 1, 2, 2, Q("20 mm")),
    Sketcher.Constraint("DistanceY", 3, 2, 3, 1, Q("80 mm")),
    Sketcher.Constraint("DistanceY", -1, 1, 0, 2, Q("1590 mm")),
    Sketcher.Constraint("DistanceY", 45, 2, 45, 1, Q("339.237898 mm")),
    Sketcher.Constraint("DistanceY", 1, 2, 1, 1, Q("14.095435 mm")),
])
pocket1 = body4.newObject("PartDesign::Pocket", "Pocket")
pocket1.Profile = sketch7
pocket1.Length = 2800
pocket1.Reversed = True
body5 = doc.addObject("PartDesign::Body", "Body004")

# Sketch on XY plane
sketch8 = body5.newObject("Sketcher::SketchObject", "Sketch007")
sketch8.AttachmentSupport = (doc.getObject("XY_Plane004"), [""])
sketch8.MapMode = "FlatFace"
sketch8.addGeometry([
    Part.LineSegment(Vector(120, 1450, 0), Vector(120, 50, 0)),
    Part.LineSegment(Vector(120, 50, 0), Vector(620, 50, 0)),
    Part.LineSegment(Vector(620, 50, 0), Vector(620, 1450, 0)),
    Part.LineSegment(Vector(620, 1450, 0), Vector(120, 1450, 0)),
], False)
sketch8.addConstraint([
    Sketcher.Constraint("Coincident", 0, 2, 1, 1),
    Sketcher.Constraint("Coincident", 1, 2, 2, 1),
    Sketcher.Constraint("Coincident", 2, 2, 3, 1),
    Sketcher.Constraint("Coincident", 3, 2, 0, 1),
    Sketcher.Constraint("Vertical", 0),
    Sketcher.Constraint("Horizontal", 1),
    Sketcher.Constraint("Vertical", 2),
    Sketcher.Constraint("Horizontal", 3),
    Sketcher.Constraint("DistanceX", 1, 1, 1, 2, Q("500 mm")),
    Sketcher.Constraint("DistanceY", 0, 2, 0, 1, Q("1400 mm")),
    Sketcher.Constraint("DistanceX", -1, 1, 0, 2, Q("120 mm")),
    Sketcher.Constraint("DistanceY", -1, 1, 0, 2, Q("50 mm")),
])
pad7 = body5.newObject("PartDesign::Pad", "Pad006")
pad7.Profile = sketch8
pad7.Type = "TwoLengths"
pad7.Length = 630
pad7.Length2 = 166.666667

doc.recompute()
